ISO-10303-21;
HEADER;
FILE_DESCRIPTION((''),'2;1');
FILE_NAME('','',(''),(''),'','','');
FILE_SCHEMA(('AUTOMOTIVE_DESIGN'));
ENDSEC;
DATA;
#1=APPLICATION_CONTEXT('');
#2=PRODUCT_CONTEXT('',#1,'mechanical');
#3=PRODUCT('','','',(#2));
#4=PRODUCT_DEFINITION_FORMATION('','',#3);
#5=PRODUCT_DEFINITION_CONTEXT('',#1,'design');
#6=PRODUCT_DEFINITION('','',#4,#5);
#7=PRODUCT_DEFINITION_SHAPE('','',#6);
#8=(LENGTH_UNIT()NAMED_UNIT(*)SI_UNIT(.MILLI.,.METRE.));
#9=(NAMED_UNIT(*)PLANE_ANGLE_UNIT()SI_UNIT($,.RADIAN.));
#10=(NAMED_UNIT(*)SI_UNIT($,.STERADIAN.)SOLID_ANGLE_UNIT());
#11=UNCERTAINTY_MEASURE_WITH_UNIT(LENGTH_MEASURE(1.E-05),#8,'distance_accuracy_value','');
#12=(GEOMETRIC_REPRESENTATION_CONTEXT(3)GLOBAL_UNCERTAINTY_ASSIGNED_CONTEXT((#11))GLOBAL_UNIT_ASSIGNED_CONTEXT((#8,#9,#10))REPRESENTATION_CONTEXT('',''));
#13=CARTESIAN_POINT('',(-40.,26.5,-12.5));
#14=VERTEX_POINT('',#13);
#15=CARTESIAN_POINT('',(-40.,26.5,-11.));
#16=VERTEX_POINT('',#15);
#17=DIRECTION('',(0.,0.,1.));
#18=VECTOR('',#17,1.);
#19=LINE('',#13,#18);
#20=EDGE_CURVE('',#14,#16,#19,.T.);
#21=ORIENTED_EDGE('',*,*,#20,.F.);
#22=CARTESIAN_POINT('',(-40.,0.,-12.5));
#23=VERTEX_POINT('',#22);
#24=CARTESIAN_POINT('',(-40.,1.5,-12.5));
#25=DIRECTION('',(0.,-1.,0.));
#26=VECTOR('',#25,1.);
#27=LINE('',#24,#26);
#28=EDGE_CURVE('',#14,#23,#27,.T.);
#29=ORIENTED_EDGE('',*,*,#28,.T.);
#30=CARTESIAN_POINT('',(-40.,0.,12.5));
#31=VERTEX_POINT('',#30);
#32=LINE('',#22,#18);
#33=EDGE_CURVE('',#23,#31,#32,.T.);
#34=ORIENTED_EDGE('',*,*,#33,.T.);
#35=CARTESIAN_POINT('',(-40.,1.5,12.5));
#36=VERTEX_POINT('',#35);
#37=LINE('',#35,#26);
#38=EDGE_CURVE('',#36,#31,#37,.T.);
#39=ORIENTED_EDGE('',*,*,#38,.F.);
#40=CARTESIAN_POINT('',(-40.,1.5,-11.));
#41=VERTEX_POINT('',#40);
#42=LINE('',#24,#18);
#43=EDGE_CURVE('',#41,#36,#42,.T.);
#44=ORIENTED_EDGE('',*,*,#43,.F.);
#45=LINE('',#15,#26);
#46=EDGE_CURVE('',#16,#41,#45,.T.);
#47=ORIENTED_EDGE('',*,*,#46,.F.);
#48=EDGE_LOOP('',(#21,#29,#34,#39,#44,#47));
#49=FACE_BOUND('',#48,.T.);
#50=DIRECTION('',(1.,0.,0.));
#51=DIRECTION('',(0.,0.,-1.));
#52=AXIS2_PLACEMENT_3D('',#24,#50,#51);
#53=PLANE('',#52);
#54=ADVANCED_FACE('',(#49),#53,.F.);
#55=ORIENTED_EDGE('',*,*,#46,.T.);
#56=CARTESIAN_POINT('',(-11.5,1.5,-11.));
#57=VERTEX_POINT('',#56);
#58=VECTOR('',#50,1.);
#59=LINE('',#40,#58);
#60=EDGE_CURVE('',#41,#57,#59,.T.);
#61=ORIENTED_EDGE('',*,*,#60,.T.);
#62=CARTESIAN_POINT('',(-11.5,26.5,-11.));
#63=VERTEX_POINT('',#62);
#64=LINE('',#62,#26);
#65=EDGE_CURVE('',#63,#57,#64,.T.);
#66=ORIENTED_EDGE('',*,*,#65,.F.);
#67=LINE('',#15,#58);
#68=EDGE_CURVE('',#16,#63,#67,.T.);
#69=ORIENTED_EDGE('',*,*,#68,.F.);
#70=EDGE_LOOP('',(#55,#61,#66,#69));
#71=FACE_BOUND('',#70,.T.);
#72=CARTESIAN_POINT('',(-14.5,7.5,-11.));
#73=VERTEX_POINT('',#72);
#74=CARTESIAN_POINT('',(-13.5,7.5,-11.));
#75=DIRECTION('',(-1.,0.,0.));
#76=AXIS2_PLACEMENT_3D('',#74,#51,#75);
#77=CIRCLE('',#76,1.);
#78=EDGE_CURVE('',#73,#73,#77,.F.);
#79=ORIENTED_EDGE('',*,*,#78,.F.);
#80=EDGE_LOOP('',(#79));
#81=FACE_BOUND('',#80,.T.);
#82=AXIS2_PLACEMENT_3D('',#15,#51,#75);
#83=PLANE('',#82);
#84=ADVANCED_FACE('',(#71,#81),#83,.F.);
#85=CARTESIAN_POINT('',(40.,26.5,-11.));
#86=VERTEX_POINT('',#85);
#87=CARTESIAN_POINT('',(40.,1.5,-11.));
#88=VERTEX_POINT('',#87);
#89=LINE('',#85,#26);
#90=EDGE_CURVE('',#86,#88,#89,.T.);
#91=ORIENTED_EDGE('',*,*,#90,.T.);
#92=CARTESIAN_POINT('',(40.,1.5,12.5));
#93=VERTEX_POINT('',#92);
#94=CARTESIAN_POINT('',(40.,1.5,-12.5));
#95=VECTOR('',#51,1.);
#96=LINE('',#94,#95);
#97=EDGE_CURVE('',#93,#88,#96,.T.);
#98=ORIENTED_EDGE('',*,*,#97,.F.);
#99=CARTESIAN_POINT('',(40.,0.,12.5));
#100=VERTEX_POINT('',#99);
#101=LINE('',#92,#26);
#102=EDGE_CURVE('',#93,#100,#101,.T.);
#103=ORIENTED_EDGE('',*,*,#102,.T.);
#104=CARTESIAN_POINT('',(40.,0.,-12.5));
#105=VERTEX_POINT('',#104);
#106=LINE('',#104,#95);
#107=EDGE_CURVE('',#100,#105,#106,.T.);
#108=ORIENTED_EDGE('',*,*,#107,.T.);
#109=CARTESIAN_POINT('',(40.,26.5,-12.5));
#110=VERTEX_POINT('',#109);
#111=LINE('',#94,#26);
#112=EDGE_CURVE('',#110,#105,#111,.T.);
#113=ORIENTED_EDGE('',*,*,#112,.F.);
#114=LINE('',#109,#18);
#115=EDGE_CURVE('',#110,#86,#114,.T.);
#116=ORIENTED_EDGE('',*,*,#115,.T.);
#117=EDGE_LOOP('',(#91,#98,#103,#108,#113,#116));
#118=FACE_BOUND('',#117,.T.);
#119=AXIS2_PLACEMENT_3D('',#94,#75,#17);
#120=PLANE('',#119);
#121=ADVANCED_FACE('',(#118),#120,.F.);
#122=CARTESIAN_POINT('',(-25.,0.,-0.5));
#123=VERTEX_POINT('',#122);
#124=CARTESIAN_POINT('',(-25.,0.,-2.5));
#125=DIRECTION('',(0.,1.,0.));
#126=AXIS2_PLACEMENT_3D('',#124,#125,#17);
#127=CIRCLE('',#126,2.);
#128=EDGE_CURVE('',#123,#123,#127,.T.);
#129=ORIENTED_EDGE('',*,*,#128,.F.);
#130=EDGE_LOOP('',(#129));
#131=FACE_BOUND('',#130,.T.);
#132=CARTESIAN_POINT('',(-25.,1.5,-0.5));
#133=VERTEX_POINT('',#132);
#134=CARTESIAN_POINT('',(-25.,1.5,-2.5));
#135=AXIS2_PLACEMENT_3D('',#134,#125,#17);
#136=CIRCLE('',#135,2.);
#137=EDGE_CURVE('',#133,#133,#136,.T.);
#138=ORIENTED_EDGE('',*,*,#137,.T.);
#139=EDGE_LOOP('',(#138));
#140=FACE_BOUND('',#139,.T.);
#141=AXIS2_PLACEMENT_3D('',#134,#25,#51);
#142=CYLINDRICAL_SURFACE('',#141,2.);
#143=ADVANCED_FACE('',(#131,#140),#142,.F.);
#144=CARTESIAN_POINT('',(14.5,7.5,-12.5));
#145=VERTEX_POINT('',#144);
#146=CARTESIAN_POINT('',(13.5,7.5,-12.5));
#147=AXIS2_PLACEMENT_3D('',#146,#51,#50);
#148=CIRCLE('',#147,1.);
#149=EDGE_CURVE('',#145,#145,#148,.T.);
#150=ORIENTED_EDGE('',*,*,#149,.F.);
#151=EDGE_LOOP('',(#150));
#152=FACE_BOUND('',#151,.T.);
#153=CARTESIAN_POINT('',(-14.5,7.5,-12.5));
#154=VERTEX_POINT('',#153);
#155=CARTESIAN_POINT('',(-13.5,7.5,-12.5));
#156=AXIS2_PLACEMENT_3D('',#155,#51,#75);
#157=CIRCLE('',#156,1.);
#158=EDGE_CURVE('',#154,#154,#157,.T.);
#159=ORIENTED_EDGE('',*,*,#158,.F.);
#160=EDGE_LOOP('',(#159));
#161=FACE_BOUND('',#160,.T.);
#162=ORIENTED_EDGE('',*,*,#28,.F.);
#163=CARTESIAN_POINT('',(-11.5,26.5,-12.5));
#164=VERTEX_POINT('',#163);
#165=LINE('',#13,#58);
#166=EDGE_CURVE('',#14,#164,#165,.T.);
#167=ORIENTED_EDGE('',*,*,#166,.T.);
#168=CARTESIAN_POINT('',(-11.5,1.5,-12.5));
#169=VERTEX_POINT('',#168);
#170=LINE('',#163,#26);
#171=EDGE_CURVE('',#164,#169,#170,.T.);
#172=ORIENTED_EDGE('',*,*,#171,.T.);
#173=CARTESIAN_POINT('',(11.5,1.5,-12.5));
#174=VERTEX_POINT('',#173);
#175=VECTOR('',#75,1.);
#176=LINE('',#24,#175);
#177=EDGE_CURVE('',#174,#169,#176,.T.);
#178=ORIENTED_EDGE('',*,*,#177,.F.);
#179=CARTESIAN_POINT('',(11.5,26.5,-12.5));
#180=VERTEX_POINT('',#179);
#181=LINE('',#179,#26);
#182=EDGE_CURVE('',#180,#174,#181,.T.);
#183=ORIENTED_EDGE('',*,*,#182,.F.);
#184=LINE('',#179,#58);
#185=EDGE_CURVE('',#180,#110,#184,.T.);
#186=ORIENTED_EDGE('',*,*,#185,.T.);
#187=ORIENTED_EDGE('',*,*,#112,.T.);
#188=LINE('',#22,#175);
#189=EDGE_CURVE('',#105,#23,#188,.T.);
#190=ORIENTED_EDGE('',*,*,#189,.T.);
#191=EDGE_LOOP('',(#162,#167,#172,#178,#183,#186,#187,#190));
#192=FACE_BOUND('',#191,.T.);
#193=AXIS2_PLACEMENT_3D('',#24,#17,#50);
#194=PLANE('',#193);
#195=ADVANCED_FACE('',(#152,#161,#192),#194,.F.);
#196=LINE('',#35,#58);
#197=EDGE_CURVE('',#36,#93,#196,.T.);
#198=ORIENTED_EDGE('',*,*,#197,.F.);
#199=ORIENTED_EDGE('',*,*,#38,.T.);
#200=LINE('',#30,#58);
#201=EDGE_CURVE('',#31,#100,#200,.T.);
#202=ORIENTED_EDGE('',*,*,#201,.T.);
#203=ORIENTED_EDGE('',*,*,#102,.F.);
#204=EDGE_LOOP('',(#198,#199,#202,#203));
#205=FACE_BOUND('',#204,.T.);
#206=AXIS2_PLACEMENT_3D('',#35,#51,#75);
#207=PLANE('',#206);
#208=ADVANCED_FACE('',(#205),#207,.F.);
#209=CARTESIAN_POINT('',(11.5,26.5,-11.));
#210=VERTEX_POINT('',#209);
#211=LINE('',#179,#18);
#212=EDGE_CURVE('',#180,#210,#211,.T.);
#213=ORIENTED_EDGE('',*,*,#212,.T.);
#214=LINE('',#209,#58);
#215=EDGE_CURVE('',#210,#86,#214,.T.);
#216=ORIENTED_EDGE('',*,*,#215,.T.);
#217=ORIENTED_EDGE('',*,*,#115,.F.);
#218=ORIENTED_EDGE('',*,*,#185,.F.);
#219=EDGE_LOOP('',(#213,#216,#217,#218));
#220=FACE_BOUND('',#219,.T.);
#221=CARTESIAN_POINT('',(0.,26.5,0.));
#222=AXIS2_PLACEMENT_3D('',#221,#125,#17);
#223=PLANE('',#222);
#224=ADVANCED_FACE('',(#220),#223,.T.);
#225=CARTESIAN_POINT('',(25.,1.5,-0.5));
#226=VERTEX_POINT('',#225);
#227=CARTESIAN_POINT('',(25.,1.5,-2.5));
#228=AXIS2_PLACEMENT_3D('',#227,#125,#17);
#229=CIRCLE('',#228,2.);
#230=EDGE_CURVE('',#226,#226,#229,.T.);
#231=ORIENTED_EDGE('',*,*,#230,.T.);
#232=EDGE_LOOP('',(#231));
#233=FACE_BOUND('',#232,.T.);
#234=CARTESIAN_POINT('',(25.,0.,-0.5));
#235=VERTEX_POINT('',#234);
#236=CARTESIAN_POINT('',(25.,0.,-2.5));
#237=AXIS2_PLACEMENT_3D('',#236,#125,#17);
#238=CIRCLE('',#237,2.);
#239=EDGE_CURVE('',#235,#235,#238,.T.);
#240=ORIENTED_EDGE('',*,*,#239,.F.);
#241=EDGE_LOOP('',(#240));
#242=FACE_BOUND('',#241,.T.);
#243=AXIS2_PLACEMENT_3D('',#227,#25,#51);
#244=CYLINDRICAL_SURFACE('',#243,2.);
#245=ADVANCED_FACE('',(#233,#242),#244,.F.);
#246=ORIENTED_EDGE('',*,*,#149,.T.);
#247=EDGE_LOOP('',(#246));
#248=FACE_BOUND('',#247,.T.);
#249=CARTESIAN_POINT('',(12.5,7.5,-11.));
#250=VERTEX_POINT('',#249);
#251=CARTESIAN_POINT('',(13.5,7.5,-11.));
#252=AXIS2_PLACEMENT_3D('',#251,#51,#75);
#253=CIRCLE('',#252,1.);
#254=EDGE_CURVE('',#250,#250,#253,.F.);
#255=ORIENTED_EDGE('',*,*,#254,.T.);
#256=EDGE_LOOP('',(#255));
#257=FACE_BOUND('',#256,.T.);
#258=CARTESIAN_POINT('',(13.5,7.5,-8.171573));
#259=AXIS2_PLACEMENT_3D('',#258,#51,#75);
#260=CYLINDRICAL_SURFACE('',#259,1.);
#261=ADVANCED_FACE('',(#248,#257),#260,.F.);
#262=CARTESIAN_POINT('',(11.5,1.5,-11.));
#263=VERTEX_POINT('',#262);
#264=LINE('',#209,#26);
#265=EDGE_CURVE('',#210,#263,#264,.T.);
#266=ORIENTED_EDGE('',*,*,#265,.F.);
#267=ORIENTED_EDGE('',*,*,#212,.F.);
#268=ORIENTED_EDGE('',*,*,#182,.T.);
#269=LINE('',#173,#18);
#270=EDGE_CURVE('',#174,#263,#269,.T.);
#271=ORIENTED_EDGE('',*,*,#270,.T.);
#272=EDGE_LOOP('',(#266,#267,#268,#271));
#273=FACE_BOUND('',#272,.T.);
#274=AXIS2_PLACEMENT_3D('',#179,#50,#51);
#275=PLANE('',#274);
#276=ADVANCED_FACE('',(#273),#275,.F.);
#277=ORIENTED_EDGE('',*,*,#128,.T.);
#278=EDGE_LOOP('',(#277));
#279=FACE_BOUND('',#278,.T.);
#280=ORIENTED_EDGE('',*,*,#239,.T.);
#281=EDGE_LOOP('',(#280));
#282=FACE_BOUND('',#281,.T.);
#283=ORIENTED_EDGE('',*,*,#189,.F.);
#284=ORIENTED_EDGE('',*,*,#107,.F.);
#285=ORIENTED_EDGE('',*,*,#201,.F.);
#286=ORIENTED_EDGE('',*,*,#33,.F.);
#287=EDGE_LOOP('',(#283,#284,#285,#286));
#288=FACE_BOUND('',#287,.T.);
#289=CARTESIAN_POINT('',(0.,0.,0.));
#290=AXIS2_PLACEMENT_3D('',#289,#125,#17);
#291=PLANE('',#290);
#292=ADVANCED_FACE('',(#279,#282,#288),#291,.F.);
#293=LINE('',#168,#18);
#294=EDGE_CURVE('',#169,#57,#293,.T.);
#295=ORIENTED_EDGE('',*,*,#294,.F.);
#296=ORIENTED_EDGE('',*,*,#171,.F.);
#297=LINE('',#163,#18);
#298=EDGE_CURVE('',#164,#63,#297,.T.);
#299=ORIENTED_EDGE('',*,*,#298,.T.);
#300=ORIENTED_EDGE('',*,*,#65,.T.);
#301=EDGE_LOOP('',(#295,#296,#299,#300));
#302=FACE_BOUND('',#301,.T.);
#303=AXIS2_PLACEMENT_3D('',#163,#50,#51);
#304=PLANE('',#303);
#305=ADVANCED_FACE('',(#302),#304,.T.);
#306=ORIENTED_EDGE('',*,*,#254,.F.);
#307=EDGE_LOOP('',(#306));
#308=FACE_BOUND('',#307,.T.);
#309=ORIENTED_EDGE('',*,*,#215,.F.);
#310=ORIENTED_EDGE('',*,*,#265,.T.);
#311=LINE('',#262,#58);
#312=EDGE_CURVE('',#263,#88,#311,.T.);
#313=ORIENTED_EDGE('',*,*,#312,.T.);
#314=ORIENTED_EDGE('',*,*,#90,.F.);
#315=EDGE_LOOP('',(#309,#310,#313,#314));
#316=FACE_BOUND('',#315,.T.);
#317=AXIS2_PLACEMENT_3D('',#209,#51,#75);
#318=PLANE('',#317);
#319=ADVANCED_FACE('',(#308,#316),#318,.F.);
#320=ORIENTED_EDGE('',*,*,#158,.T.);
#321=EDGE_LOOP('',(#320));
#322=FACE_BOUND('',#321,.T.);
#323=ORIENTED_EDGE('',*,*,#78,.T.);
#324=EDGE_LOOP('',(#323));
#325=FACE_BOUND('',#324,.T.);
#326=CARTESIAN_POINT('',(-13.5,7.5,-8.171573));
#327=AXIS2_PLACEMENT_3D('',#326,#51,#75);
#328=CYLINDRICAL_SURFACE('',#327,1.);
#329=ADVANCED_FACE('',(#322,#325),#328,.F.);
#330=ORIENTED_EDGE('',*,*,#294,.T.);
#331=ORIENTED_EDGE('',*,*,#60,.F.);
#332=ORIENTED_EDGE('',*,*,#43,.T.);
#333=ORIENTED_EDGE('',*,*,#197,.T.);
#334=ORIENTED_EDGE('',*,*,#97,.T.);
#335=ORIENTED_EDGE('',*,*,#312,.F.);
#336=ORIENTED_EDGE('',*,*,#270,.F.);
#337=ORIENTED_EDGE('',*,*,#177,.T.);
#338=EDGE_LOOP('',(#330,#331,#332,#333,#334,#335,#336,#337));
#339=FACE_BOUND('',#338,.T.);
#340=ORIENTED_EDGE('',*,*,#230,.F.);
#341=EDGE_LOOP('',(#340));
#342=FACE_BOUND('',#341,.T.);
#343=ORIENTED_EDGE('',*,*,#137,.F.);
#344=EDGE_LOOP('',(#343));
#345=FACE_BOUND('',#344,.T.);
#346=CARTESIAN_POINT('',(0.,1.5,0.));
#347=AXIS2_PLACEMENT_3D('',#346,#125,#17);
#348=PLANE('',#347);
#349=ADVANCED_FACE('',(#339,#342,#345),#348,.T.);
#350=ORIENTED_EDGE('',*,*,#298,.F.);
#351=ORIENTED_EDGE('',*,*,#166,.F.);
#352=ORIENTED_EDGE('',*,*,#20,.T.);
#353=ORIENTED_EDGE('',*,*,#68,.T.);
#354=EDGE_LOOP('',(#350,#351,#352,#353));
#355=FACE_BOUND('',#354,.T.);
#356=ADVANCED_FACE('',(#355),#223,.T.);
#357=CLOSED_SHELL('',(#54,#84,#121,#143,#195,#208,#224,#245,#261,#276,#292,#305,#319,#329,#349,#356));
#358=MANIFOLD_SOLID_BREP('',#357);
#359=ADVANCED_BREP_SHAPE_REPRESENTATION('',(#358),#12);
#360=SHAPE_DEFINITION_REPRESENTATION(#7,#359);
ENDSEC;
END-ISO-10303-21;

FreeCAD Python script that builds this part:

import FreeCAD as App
import Part
import Sketcher
from FreeCAD import Vector
Q = App.Units.Quantity


def add_polygon(sketch, points):
    """Adds a closed chain of lines whose ends are joined by coincident constraints."""
    first, n = sketch.GeometryCount, len(points)
    for a, b in zip(points, points[1:] + points[:1]):
        sketch.addGeometry(Part.LineSegment(App.Vector(*a, 0), App.Vector(*b, 0)), False)
    for i in range(n):
        sketch.addConstraint(Sketcher.Constraint("Coincident", first + i, 2, first + (i + 1) % n, 1))

doc = App.newDocument("Part")
body = doc.addObject("PartDesign::Body", "Body")

# Sketch on XZ plane
sketch1 = body.newObject("Sketcher::SketchObject", "Sketch")
sketch1.AttachmentSupport = (doc.getObject("XZ_Plane"), [""])
sketch1.MapMode = "FlatFace"
add_polygon(sketch1, [(-40, -12.5), (-40, 12.5), (40, 12.5), (40, -12.5)])  # lines 0-3
sketch1.addGeometry(Part.Circle(Vector(-25, -2.5, 0), Vector(0, 0, 1), 2), False)  # 4
sketch1.addGeometry(Part.Circle(Vector(25, -2.5, 0), Vector(0, 0, 1), 2), False)  # 5
sketch1.addConstraint([
    Sketcher.Constraint("Vertical", 0),
    Sketcher.Constraint("Horizontal", 1),
    Sketcher.Constraint("Vertical", 2),
    Sketcher.Constraint("Horizontal", 3),
    Sketcher.Constraint("Equal", 4, 5),
    Sketcher.Constraint("Symmetric", 0, 2, 2, 2, -1, 1),
    Sketcher.Constraint("Symmetric", 4, 3, 5, 3, -2),
    Sketcher.Constraint("Diameter", 4, Q("4 mm")),
    Sketcher.Constraint("DistanceX", 1, 1, 1, 2, Q("80 mm")),
    Sketcher.Constraint("DistanceY", 0, 1, 0, 2, Q("25 mm")),
    Sketcher.Constraint("DistanceX", 4, 3, -1, 1, Q("25 mm")),
    Sketcher.Constraint("DistanceY", 4, 3, 0, 2, Q("15 mm")),
])
pad1 = body.newObject("PartDesign::Pad", "Pad")
pad1.Profile = sketch1
pad1.Length = 1.5
pad1.Reversed = True

# Sketch on XZ plane
sketch2 = body.newObject("Sketcher::SketchObject", "Sketch001")
sketch2.AttachmentSupport = (doc.getObject("XZ_Plane"), [""])
sketch2.MapMode = "FlatFace"
sketch2.AttachmentOffset = App.Placement(Vector(0, 0, -1.5), App.Rotation())
add_polygon(sketch2, [(-40, -12.5), (-40, -11), (-11.5, -11), (-11.5, -12.5)])  # lines 0-3
add_polygon(sketch2, [(11.5, -12.5), (11.5, -11), (40, -11), (40, -12.5)])  # lines 4-7
sketch2.addConstraint([
    Sketcher.Constraint("Vertical", 0),
    Sketcher.Constraint("Horizontal", 1),
    Sketcher.Constraint("Vertical", 2),
    Sketcher.Constraint("Horizontal", 3),
    Sketcher.Constraint("Vertical", 4),
    Sketcher.Constraint("Horizontal", 5),
    Sketcher.Constraint("Vertical", 6),
    Sketcher.Constraint("Horizontal", 7),
    Sketcher.Constraint("Symmetric", 1, 2, 4, 2, -2),
    Sketcher.Constraint("Symmetric", 3, 2, 6, 2, -2),
    Sketcher.Constraint("DistanceX", 1, 1, 1, 2, Q("28.5 mm")),
    Sketcher.Constraint("DistanceY", 0, 1, 0, 2, Q("1.5 mm")),
    Sketcher.Constraint("DistanceX", 0, 2, -1, 1, Q("40 mm")),
    Sketcher.Constraint("DistanceY", 0, 2, -1, 1, Q("11 mm")),
])
pad2 = body.newObject("PartDesign::Pad", "Pad001")
pad2.Profile = sketch2
pad2.Length = 25
pad2.Reversed = True

# Sketch on XY plane
sketch3 = body.newObject("Sketcher::SketchObject", "Sketch002")
sketch3.AttachmentSupport = (doc.getObject("XY_Plane"), [""])
sketch3.MapMode = "FlatFace"
sketch3.AttachmentOffset = App.Placement(Vector(0, 0, -12.5), App.Rotation())
sketch3.addGeometry([
    Part.Circle(Vector(-13.5, 7.5, 0), Vector(0, 0, 1), 1),
    Part.Circle(Vector(13.5, 7.5, 0), Vector(0, 0, 1), 1),
], False)
sketch3.addConstraint([
    Sketcher.Constraint("Equal", 0, 1),
    Sketcher.Constraint("Symmetric", 0, 3, 1, 3, -2),
    Sketcher.Constraint("Diameter", 0, Q("2 mm")),
    Sketcher.Constraint("DistanceX", 0, 3, 1, 3, Q("27 mm")),
    Sketcher.Constraint("DistanceY", -1, 1, 0, 3, Q("7.5 mm")),
])
pocket1 = body.newObject("PartDesign::Pocket", "Pocket")
pocket1.Profile = sketch3
pocket1.Length = 1.5
pocket1.Reversed = True

doc.recompute()
